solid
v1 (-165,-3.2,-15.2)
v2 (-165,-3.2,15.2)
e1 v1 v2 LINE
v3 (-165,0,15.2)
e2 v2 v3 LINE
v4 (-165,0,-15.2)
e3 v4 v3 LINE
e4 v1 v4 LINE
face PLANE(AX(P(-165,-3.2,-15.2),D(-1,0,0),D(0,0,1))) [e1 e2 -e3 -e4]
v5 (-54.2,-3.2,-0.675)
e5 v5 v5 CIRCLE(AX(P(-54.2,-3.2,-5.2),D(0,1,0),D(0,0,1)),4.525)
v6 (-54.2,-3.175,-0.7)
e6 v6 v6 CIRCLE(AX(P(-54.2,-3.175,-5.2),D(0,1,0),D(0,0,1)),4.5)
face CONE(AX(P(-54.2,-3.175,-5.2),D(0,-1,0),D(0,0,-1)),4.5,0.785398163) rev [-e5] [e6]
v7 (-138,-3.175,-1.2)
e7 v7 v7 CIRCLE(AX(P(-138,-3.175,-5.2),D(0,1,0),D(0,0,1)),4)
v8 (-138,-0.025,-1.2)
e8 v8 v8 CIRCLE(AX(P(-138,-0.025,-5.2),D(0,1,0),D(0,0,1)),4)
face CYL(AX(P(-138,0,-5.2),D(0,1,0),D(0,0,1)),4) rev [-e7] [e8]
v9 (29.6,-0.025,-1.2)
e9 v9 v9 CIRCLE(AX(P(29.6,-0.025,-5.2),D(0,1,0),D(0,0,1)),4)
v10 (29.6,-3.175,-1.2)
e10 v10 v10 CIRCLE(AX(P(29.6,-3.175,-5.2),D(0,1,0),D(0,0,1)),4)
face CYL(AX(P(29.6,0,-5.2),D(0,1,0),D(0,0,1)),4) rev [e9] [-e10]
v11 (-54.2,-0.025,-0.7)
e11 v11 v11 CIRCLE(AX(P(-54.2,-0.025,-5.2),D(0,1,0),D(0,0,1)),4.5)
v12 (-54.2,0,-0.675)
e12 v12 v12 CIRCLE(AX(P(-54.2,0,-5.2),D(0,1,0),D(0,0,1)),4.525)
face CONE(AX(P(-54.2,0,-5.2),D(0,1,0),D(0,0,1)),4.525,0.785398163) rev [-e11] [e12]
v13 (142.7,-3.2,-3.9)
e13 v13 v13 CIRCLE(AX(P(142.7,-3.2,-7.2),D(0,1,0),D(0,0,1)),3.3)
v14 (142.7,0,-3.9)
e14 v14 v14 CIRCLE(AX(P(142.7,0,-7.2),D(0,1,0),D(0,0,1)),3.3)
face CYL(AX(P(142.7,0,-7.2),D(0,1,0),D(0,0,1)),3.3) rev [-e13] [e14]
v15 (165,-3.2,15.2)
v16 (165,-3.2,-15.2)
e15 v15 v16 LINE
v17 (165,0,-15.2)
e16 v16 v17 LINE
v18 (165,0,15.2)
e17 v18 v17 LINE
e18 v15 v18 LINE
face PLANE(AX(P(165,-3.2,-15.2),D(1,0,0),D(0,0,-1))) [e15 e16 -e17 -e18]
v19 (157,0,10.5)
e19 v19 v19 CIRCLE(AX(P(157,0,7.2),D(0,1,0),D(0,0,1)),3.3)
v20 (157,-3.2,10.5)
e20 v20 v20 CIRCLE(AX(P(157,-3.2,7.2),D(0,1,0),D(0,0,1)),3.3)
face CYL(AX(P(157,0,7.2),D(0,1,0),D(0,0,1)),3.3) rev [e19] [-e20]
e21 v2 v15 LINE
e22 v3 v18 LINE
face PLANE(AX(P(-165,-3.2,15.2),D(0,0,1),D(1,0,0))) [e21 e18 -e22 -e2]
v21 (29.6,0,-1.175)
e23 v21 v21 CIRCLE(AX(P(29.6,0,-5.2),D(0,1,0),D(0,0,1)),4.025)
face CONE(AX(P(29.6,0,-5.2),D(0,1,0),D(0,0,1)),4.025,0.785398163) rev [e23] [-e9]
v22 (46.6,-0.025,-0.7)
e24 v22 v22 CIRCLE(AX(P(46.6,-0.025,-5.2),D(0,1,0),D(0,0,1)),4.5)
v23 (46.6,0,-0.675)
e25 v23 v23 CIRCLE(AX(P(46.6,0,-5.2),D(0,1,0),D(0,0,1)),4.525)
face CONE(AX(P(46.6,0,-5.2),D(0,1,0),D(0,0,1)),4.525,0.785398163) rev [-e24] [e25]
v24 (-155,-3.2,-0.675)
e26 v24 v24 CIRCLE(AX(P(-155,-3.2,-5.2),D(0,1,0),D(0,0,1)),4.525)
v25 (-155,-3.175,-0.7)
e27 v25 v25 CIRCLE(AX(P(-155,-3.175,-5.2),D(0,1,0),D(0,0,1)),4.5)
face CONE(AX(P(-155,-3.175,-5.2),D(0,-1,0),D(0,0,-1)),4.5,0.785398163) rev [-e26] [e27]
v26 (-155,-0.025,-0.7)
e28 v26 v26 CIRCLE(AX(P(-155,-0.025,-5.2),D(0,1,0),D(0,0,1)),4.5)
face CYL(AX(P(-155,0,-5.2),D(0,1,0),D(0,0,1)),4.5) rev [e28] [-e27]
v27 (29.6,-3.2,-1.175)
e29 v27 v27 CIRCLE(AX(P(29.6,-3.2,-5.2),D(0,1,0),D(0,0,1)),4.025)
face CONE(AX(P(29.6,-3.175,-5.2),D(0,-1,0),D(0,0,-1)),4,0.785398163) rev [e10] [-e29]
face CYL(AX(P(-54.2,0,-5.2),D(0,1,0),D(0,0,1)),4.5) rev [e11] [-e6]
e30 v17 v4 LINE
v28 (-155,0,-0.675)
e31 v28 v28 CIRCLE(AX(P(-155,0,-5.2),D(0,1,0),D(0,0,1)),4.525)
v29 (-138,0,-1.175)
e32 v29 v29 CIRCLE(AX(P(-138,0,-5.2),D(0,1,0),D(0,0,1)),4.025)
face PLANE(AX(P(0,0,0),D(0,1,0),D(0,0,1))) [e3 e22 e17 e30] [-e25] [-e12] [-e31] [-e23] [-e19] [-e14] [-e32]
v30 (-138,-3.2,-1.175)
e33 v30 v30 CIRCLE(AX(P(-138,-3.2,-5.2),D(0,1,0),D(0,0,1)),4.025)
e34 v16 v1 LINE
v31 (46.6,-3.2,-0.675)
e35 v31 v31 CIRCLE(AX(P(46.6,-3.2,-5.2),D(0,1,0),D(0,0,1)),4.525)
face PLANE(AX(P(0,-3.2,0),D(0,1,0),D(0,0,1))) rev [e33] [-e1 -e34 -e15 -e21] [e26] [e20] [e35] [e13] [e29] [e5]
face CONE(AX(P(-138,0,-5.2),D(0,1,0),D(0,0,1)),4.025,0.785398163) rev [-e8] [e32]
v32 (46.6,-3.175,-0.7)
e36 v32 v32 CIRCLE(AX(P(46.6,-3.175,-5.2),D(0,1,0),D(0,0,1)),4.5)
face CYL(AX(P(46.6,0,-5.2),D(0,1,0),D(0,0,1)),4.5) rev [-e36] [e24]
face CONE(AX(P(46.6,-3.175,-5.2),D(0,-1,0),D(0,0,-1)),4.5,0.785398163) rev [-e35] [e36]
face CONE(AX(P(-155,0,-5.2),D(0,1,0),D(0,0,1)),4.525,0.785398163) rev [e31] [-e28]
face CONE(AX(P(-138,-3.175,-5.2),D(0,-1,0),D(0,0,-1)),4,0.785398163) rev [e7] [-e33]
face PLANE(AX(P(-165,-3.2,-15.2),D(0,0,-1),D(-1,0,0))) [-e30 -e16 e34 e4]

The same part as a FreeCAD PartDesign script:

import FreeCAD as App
import Part
import Sketcher
from FreeCAD import Vector
Q = App.Units.Quantity


def add_polygon(sketch, points):
    """Adds a closed chain of lines whose ends are joined by coincident constraints."""
    first, n = sketch.GeometryCount, len(points)
    for a, b in zip(points, points[1:] + points[:1]):
        sketch.addGeometry(Part.LineSegment(App.Vector(*a, 0), App.Vector(*b, 0)), False)
    for i in range(n):
        sketch.addConstraint(Sketcher.Constraint("Coincident", first + i, 2, first + (i + 1) % n, 1))

doc = App.newDocument("Part")
params = doc.addObject("Spreadsheet::Sheet", "Params")
for row, (alias, value) in enumerate([
    ("sketch1_width", "330 mm"),
    ("sketch1_height", "30.4 mm"),
    ("pad1_length", "3.2 mm"),
    ("sketch2_width", "3.2 mm"),
    ("sketch2_width2", "3.15 mm"),
    ("groove_angle", "360 deg"),
    ("linearpattern_pitch", "201.6 mm"),
    ("linearpattern2_pitch", "100.8 mm"),
    ("sketch3_width", "3.2 mm"),
    ("sketch3_width2", "3.15 mm"),
    ("groove2_angle", "360 deg"),
    ("linearpattern3_pitch", "167.6 mm"),
    ("sketch4_diameter", "6.6 mm"),
    ("hole_diameter", "6.6 mm"),
], start=1):
    params.set(f"A{row}", alias)
    params.set(f"B{row}", "=" + value)
    params.setAlias(f"B{row}", alias)

body = doc.addObject("PartDesign::Body", "Body")

sketch1 = body.newObject("Sketcher::SketchObject", "Sketch")
sketch1.AttachmentSupport = (doc.getObject("XZ_Plane"), [""])
sketch1.MapMode = "FlatFace"
add_polygon(sketch1, [(-165, -15), (-165, 15), (165, 15), (165, -15)])
sketch1.addConstraint(Sketcher.Constraint("Vertical", 0))
sketch1.addConstraint(Sketcher.Constraint("Horizontal", 1))
sketch1.addConstraint(Sketcher.Constraint("Vertical", 2))
sketch1.addConstraint(Sketcher.Constraint("Horizontal", 3))
sketch1.addConstraint(Sketcher.Constraint("Symmetric", 0, 2, 2, 2, -1, 1))
sketch1.addConstraint(Sketcher.Constraint("DistanceX", 1, 1, 1, 2, Q("330 mm")))
sketch1.addConstraint(Sketcher.Constraint("DistanceY", 0, 1, 0, 2, Q("30.4 mm")))
sketch1.setExpression("Constraints[9]", "Params.sketch1_width")
sketch1.setExpression("Constraints[10]", "Params.sketch1_height")
pad1 = body.newObject("PartDesign::Pad", "Pad")
pad1.Profile = sketch1
pad1.setExpression("Length", "Params.pad1_length")

sketch2 = body.newObject("Sketcher::SketchObject", "Sketch001")
sketch2.AttachmentSupport = (doc.getObject("YZ_Plane"), [""])
sketch2.MapMode = "FlatFace"
sketch2.AttachmentOffset = App.Placement(Vector(0, 0, -155), App.Rotation())
add_polygon(sketch2, [(-3.2, -5.2), (0, -5.2), (0, -0.675), (-0.025, -0.7), (-3.175, -0.7), (-3.2, -0.675)])
sketch2.addGeometry(Part.LineSegment(Vector(0, -5.2, 0), Vector(-3.2, -5.2, 0)), True)
sketch2.addConstraint(Sketcher.Constraint("Horizontal", 0))
sketch2.addConstraint(Sketcher.Constraint("Vertical", 1))
sketch2.addConstraint(Sketcher.Constraint("Horizontal", 3))
sketch2.addConstraint(Sketcher.Constraint("Vertical", 5))
sketch2.addConstraint(Sketcher.Constraint("Horizontal", 6))
sketch2.addConstraint(Sketcher.Constraint("Coincident", 6, 1, 0, 2))
sketch2.addConstraint(Sketcher.Constraint("PointOnObject", 0, 2, -2))
sketch2.addConstraint(Sketcher.Constraint("Perpendicular", 2, 4))
sketch2.addConstraint(Sketcher.Constraint("Horizontal", 1, 2, 4, 2))
sketch2.addConstraint(Sketcher.Constraint("Vertical", 4, 2, 6, 2))
sketch2.addConstraint(Sketcher.Constraint("Equal", 2, 4))
sketch2.addConstraint(Sketcher.Constraint("DistanceX", 0, 1, 0, 2, Q("3.2 mm")))
sketch2.addConstraint(Sketcher.Constraint("DistanceX", 3, 2, 3, 1, Q("3.15 mm")))
sketch2.addConstraint(Sketcher.Constraint("DistanceY", 0, 2, -1, 1, Q("5.2 mm")))
sketch2.addConstraint(Sketcher.Constraint("DistanceY", 2, 2, -1, 1, Q("0.7 mm")))
sketch2.setExpression("Constraints[17]", "Params.sketch2_width")
sketch2.setExpression("Constraints[18]", "Params.sketch2_width2")
groove = body.newObject("PartDesign::Groove", "Groove")
groove.Profile = sketch2
groove.ReferenceAxis = (sketch2, ["Axis0"])
groove.setExpression("Angle", "Params.groove_angle")
doc.recompute()

linearpattern = body.newObject("PartDesign::LinearPattern", "LinearPattern")
linearpattern.Originals = [groove]
linearpattern.Direction = (doc.getObject("X_Axis"), [""])
linearpattern.Mode = "offset"
linearpattern.setExpression("Offset", "Params.linearpattern_pitch")
linearpattern.Occurrences = 2
body.Tip = linearpattern
doc.recompute()

linearpattern2 = body.newObject("PartDesign::LinearPattern", "LinearPattern001")
linearpattern2.Originals = [groove]
linearpattern2.Direction = (doc.getObject("X_Axis"), [""])
linearpattern2.Mode = "offset"
linearpattern2.setExpression("Offset", "Params.linearpattern2_pitch")
linearpattern2.Occurrences = 2
body.Tip = linearpattern2

sketch3 = body.newObject("Sketcher::SketchObject", "Sketch002")
sketch3.AttachmentSupport = (doc.getObject("YZ_Plane"), [""])
sketch3.MapMode = "FlatFace"
sketch3.AttachmentOffset = App.Placement(Vector(0, 0, -138), App.Rotation())
add_polygon(sketch3, [(-3.2, -5.2), (0, -5.2), (0, -1.175), (-0.025, -1.2), (-3.175, -1.2), (-3.2, -1.175)])
sketch3.addGeometry(Part.LineSegment(Vector(0, -5.2, 0), Vector(-3.2, -5.2, 0)), True)
sketch3.addConstraint(Sketcher.Constraint("Horizontal", 0))
sketch3.addConstraint(Sketcher.Constraint("Vertical", 1))
sketch3.addConstraint(Sketcher.Constraint("Horizontal", 3))
sketch3.addConstraint(Sketcher.Constraint("Vertical", 5))
sketch3.addConstraint(Sketcher.Constraint("Horizontal", 6))
sketch3.addConstraint(Sketcher.Constraint("Coincident", 6, 1, 0, 2))
sketch3.addConstraint(Sketcher.Constraint("PointOnObject", 0, 2, -2))
sketch3.addConstraint(Sketcher.Constraint("Perpendicular", 2, 4))
sketch3.addConstraint(Sketcher.Constraint("Horizontal", 1, 2, 4, 2))
sketch3.addConstraint(Sketcher.Constraint("Vertical", 4, 2, 6, 2))
sketch3.addConstraint(Sketcher.Constraint("Equal", 2, 4))
sketch3.addConstraint(Sketcher.Constraint("DistanceX", 0, 1, 0, 2, Q("3.2 mm")))
sketch3.addConstraint(Sketcher.Constraint("DistanceY", 0, 2, 2, 2, Q("4 mm")))
sketch3.addConstraint(Sketcher.Constraint("DistanceX", 3, 2, 3, 1, Q("3.15 mm")))
sketch3.addConstraint(Sketcher.Constraint("DistanceY", 0, 2, -1, 1, Q("5.2 mm")))
sketch3.setExpression("Constraints[17]", "Params.sketch3_width")
sketch3.setExpression("Constraints[19]", "Params.sketch3_width2")
groove2 = body.newObject("PartDesign::Groove", "Groove001")
groove2.Profile = sketch3
groove2.ReferenceAxis = (sketch3, ["Axis0"])
groove2.setExpression("Angle", "Params.groove2_angle")
doc.recompute()

linearpattern3 = body.newObject("PartDesign::LinearPattern", "LinearPattern002")
linearpattern3.Originals = [groove2]
linearpattern3.Direction = (doc.getObject("X_Axis"), [""])
linearpattern3.Mode = "offset"
linearpattern3.setExpression("Offset", "Params.linearpattern3_pitch")
linearpattern3.Occurrences = 2
body.Tip = linearpattern3

sketch4 = body.newObject("Sketcher::SketchObject", "Sketch003")
sketch4.AttachmentSupport = (doc.getObject("XZ_Plane"), [""])
sketch4.MapMode = "FlatFace"
sketch4.addGeometry(Part.Circle(Vector(142.7, -7.2, 0), Vector(0, 0, 1), 3.3), False)
sketch4.addGeometry(Part.Circle(Vector(157, 7.2, 0), Vector(0, 0, 1), 3.3), False)
sketch4.addConstraint(Sketcher.Constraint("Equal", 0, 1))
sketch4.addConstraint(Sketcher.Constraint("Diameter", 0, Q("6.6 mm")))
sketch4.addConstraint(Sketcher.Constraint("DistanceX", -1, 1, 1, 3, Q("157 mm")))
sketch4.addConstraint(Sketcher.Constraint("DistanceX", -1, 1, 0, 3, Q("142.7 mm")))
sketch4.addConstraint(Sketcher.Constraint("DistanceY", 0, 3, -1, 1, Q("7.2 mm")))
sketch4.addConstraint(Sketcher.Constraint("DistanceY", -1, 1, 1, 3, Q("7.2 mm")))
sketch4.setExpression("Constraints[1]", "Params.sketch4_diameter")
doc.recompute()
hole = body.newObject("PartDesign::Hole", "Hole")
hole.Profile = sketch4
hole.ThreadType = "None"
hole.setExpression("Diameter", "Params.hole_diameter")
hole.DepthType = "ThroughAll"
hole.Reversed = True

doc.recompute()
